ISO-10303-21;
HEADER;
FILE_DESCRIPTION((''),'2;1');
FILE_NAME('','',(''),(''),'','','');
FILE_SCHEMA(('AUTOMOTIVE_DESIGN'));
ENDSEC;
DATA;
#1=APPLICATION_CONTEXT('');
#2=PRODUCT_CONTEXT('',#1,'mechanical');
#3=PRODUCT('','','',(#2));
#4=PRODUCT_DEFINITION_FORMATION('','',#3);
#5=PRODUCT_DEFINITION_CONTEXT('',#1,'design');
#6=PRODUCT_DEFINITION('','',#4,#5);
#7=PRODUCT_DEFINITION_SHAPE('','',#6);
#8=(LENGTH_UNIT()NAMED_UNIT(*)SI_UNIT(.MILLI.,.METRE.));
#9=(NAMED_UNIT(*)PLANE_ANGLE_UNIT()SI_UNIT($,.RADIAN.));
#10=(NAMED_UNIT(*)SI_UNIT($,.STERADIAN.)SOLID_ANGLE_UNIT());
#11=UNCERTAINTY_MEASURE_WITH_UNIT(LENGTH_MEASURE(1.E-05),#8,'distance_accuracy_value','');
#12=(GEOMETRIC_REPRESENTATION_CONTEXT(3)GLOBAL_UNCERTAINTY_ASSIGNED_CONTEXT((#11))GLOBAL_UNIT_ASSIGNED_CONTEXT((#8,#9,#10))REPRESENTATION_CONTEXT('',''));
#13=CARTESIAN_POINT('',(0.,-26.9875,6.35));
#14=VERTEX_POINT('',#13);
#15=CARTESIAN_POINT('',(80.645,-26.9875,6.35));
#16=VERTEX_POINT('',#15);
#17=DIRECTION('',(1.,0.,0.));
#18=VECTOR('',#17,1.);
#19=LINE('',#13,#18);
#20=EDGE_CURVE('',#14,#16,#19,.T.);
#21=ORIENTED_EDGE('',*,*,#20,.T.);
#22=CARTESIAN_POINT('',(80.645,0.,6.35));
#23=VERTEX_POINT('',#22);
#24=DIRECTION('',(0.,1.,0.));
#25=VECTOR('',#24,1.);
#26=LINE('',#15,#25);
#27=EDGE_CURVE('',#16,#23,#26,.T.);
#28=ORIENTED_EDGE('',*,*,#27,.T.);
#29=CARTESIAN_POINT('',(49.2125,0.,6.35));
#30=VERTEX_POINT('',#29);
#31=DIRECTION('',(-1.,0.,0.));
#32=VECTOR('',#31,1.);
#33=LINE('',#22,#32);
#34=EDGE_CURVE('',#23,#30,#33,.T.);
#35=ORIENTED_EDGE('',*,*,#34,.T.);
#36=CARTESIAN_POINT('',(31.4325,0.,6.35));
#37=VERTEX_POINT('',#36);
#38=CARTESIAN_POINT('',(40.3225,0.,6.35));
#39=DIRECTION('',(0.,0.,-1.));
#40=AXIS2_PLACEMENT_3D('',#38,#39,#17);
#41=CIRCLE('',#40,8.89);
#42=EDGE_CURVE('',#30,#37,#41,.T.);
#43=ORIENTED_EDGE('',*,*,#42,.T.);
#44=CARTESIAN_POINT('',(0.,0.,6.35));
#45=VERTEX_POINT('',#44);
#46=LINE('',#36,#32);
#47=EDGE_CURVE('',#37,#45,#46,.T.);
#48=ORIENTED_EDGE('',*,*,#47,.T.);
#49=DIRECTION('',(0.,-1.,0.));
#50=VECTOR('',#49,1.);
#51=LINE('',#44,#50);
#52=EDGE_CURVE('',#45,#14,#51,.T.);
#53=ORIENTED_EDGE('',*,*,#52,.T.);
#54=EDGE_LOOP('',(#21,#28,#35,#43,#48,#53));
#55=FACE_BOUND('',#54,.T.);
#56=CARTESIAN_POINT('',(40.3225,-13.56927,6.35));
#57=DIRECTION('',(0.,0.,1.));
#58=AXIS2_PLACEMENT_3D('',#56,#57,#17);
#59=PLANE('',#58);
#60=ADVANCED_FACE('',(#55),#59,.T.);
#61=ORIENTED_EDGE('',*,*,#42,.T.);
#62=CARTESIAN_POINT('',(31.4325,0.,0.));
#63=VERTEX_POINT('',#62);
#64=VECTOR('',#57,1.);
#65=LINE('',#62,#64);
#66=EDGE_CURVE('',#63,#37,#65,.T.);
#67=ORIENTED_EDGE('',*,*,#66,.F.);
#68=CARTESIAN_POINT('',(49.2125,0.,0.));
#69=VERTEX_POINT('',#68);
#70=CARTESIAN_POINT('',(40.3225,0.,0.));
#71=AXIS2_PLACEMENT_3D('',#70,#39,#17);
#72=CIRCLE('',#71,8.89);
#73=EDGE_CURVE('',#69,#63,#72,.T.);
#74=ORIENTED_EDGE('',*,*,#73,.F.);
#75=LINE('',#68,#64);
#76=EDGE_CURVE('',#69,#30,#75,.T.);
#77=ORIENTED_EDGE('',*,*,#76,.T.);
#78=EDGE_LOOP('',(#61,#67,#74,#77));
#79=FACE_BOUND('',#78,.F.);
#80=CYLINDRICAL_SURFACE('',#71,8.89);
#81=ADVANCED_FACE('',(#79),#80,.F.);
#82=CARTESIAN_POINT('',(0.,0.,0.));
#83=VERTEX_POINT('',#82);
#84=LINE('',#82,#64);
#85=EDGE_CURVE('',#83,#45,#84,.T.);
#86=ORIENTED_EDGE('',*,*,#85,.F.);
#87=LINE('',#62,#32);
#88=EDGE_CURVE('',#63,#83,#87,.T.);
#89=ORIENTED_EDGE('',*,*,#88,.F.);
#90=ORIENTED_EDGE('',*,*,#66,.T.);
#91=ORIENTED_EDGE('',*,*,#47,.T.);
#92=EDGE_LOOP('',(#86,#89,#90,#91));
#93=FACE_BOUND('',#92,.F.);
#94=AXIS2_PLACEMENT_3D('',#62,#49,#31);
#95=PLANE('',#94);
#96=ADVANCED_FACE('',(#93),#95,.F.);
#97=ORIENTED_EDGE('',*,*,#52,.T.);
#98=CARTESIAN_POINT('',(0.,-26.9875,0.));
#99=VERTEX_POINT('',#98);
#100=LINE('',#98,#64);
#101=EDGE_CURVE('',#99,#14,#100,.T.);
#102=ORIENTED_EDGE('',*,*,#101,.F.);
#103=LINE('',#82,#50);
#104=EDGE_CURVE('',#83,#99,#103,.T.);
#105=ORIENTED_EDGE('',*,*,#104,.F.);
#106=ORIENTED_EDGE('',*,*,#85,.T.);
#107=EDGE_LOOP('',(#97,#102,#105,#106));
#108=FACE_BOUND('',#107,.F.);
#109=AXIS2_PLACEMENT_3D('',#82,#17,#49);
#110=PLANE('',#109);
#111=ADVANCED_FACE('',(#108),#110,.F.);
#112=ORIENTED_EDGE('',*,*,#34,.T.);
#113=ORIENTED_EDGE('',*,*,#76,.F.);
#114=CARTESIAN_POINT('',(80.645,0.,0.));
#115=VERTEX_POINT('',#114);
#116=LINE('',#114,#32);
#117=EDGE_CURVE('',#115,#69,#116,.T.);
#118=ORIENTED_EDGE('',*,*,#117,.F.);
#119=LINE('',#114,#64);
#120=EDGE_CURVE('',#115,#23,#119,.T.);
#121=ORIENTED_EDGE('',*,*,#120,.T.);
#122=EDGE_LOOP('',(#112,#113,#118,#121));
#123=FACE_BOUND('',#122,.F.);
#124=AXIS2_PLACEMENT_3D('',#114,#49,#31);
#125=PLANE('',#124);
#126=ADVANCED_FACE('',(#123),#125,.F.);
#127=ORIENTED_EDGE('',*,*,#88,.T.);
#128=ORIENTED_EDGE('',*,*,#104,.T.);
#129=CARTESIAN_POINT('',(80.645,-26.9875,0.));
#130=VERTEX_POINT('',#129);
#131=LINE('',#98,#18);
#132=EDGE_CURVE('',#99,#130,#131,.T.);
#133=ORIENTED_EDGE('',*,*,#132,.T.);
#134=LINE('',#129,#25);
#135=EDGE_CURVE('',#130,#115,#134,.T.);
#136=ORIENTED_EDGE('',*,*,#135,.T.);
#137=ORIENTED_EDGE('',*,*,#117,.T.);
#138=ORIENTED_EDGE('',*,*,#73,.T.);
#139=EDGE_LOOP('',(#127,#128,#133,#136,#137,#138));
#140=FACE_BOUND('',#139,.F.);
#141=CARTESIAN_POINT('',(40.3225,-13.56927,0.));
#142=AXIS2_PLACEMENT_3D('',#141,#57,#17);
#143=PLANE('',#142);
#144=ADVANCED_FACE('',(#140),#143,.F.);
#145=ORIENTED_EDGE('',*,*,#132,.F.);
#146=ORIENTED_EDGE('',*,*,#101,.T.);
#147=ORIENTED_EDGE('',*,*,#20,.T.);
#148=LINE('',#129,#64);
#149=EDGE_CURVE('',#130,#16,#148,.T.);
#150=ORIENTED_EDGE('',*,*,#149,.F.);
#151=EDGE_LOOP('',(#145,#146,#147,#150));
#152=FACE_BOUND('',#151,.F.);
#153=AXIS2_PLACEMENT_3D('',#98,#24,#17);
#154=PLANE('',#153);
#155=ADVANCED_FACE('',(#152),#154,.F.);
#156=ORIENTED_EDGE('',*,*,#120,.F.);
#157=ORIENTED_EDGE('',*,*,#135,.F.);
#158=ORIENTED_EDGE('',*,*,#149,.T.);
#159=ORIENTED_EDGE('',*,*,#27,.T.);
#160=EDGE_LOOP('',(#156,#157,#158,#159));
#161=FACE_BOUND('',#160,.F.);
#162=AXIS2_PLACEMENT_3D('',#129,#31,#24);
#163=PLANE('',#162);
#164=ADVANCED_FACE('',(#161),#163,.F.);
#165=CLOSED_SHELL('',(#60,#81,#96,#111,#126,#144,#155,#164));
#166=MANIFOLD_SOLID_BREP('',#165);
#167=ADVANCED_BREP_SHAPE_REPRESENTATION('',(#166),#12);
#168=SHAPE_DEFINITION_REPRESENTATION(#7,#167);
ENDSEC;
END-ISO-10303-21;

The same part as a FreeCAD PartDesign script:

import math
import FreeCAD as App
import Part
import Sketcher
Q = App.Units.Quantity

doc = App.newDocument("Part")
body = doc.addObject("PartDesign::Body", "Body")

# Sketch on XY plane
sketch1 = body.newObject("Sketcher::SketchObject", "Sketch")
sketch1.AttachmentSupport = (doc.getObject("XY_Plane"), [""])
sketch1.MapMode = "FlatFace"
sketch1.addGeometry([
    Part.LineSegment(App.Vector(31, 0, 0), App.Vector(0, 0, 0)),  # 0
    Part.LineSegment(App.Vector(0, 0, 0), App.Vector(0, -27, 0)),  # 1
    Part.LineSegment(App.Vector(0, -27, 0), App.Vector(81, -27, 0)),  # 2
    Part.LineSegment(App.Vector(81, -27, 0), App.Vector(81, 0, 0)),  # 3
    Part.LineSegment(App.Vector(81, 0, 0), App.Vector(49, 0, 0)),  # 4
    Part.ArcOfCircle(Part.Circle(App.Vector(40, 0, 0), App.Vector(0, 0, 1), 9), math.radians(180), math.radians(360)),  # 5
], False)
sketch1.addConstraint([
    Sketcher.Constraint("Coincident", 0, 2, 1, 1),
    Sketcher.Constraint("Coincident", 1, 2, 2, 1),
    Sketcher.Constraint("Coincident", 2, 2, 3, 1),
    Sketcher.Constraint("Coincident", 3, 2, 4, 1),
    Sketcher.Constraint("Coincident", 4, 2, 5, 2),
    Sketcher.Constraint("Coincident", 5, 1, 0, 1),
    Sketcher.Constraint("Horizontal", 0),
    Sketcher.Constraint("Vertical", 1),
    Sketcher.Constraint("Horizontal", 2),
    Sketcher.Constraint("Vertical", 3),
    Sketcher.Constraint("Horizontal", 4),
    Sketcher.Constraint("Coincident", 0, 2, -1, 1),
    Sketcher.Constraint("PointOnObject", 5, 3, -1),
    Sketcher.Constraint("PointOnObject", 3, 2, -1),
    Sketcher.Constraint("Equal", 0, 4),
    Sketcher.Constraint("Radius", 5, Q("0.35 in")),
    Sketcher.Constraint("DistanceX", 2, 1, 2, 2, Q("3.175 in")),
    Sketcher.Constraint("DistanceY", 1, 2, 1, 1, Q("1.0625 in")),
])
pad1 = body.newObject("PartDesign::Pad", "Pad")
pad1.Profile = sketch1
pad1.Length = Q("0.25 in")

doc.recompute()
